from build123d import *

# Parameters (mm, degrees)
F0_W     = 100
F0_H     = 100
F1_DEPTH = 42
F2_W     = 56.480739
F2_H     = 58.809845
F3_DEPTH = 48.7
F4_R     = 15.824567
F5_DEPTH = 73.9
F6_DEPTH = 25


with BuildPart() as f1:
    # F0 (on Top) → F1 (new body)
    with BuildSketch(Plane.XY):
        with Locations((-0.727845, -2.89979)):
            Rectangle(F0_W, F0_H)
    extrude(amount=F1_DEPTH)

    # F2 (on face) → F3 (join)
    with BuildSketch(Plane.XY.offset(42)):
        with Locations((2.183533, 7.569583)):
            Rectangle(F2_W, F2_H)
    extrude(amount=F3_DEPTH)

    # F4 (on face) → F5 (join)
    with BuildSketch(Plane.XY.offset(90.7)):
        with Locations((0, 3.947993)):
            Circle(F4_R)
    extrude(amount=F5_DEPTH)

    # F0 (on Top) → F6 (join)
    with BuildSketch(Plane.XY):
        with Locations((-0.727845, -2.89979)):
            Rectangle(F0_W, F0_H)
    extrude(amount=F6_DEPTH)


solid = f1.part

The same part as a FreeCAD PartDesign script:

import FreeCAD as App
import Part
import Sketcher

V = App.Vector
Q = App.Units.Quantity

doc = App.newDocument("Part")
params = doc.addObject("Spreadsheet::Sheet", "Params")
for row, (alias, value) in enumerate([
    ("sketch1_width", "100 mm"),
    ("pad1_length", "42 mm"),
    ("pad2_length", "48.7 mm"),
    ("pad3_length", "73.9 mm"),
    ("sketch4_width", "100 mm"),
    ("pad4_length", "25 mm"),
], start=1):
    params.set(f"A{row}", alias)
    params.set(f"B{row}", "=" + value)
    params.setAlias(f"B{row}", alias)

body = doc.addObject("PartDesign::Body", "Body")

# Sketch on XY plane
sketch1 = body.newObject("Sketcher::SketchObject", "Sketch")
sketch1.AttachmentSupport = (doc.getObject("XY_Plane"), [""])
sketch1.MapMode = "FlatFace"
sketch1.addGeometry(Part.LineSegment(V(-50.727845, 47.10021, 0), V(-50.727845, -52.89979, 0)), False)
sketch1.addGeometry(Part.LineSegment(V(-50.727845, -52.89979, 0), V(49.272155, -52.89979, 0)), False)
sketch1.addGeometry(Part.LineSegment(V(49.272155, -52.89979, 0), V(49.272155, 47.10021, 0)), False)
sketch1.addGeometry(Part.LineSegment(V(49.272155, 47.10021, 0), V(-50.727845, 47.10021, 0)), False)
sketch1.addConstraint(Sketcher.Constraint("Coincident", 0, 2, 1, 1))
sketch1.addConstraint(Sketcher.Constraint("Coincident", 1, 2, 2, 1))
sketch1.addConstraint(Sketcher.Constraint("Coincident", 2, 2, 3, 1))
sketch1.addConstraint(Sketcher.Constraint("Coincident", 3, 2, 0, 1))
sketch1.addConstraint(Sketcher.Constraint("Vertical", 0))
sketch1.addConstraint(Sketcher.Constraint("Horizontal", 1))
sketch1.addConstraint(Sketcher.Constraint("Vertical", 2))
sketch1.addConstraint(Sketcher.Constraint("Horizontal", 3))
sketch1.addConstraint(Sketcher.Constraint("Equal", 3, 0))
sketch1.addConstraint(Sketcher.Constraint("DistanceX", 1, 1, 1, 2, Q("100 mm")))
sketch1.addConstraint(Sketcher.Constraint("DistanceY", 0, 2, -1, 1, Q("52.89979 mm")))
sketch1.addConstraint(Sketcher.Constraint("DistanceX", 0, 2, -1, 1, Q("50.727845 mm")))
sketch1.setExpression("Constraints[9]", "Params.sketch1_width")
pad1 = body.newObject("PartDesign::Pad", "Pad")
pad1.Profile = sketch1
pad1.setExpression("Length", "Params.pad1_length")

# Sketch on XY plane
sketch2 = body.newObject("Sketcher::SketchObject", "Sketch001")
sketch2.AttachmentSupport = (doc.getObject("XY_Plane"), [""])
sketch2.MapMode = "FlatFace"
sketch2.AttachmentOffset = App.Placement(V(0, 0, 42), App.Rotation())
sketch2.addGeometry(Part.LineSegment(V(-26.056836, 36.974505, 0), V(-26.056836, -21.835339, 0)), False)
sketch2.addGeometry(Part.LineSegment(V(-26.056836, -21.835339, 0), V(30.423903, -21.835339, 0)), False)
sketch2.addGeometry(Part.LineSegment(V(30.423903, -21.835339, 0), V(30.423903, 36.974505, 0)), False)
sketch2.addGeometry(Part.LineSegment(V(30.423903, 36.974505, 0), V(-26.056836, 36.974505, 0)), False)
sketch2.addConstraint(Sketcher.Constraint("Coincident", 0, 2, 1, 1))
sketch2.addConstraint(Sketcher.Constraint("Coincident", 1, 2, 2, 1))
sketch2.addConstraint(Sketcher.Constraint("Coincident", 2, 2, 3, 1))
sketch2.addConstraint(Sketcher.Constraint("Coincident", 3, 2, 0, 1))
sketch2.addConstraint(Sketcher.Constraint("Vertical", 0))
sketch2.addConstraint(Sketcher.Constraint("Horizontal", 1))
sketch2.addConstraint(Sketcher.Constraint("Vertical", 2))
sketch2.addConstraint(Sketcher.Constraint("Horizontal", 3))
sketch2.addConstraint(Sketcher.Constraint("DistanceX", 1, 1, 1, 2, Q("56.480739 mm")))
sketch2.addConstraint(Sketcher.Constraint("DistanceY", 0, 2, 0, 1, Q("58.809845 mm")))
sketch2.addConstraint(Sketcher.Constraint("DistanceY", 0, 2, -1, 1, Q("21.835339 mm")))
sketch2.addConstraint(Sketcher.Constraint("DistanceX", 0, 2, -1, 1, Q("26.056836 mm")))
pad2 = body.newObject("PartDesign::Pad", "Pad001")
pad2.Profile = sketch2
pad2.setExpression("Length", "Params.pad2_length")

# Sketch on XY plane
sketch3 = body.newObject("Sketcher::SketchObject", "Sketch002")
sketch3.AttachmentSupport = (doc.getObject("XY_Plane"), [""])
sketch3.MapMode = "FlatFace"
sketch3.AttachmentOffset = App.Placement(V(0, 0, 90.7), App.Rotation())
sketch3.addGeometry(Part.Circle(V(0, 3.947993, 0), V(0, 0, 1), 15.824567), False)
sketch3.addConstraint(Sketcher.Constraint("PointOnObject", 0, 3, -2))
sketch3.addConstraint(Sketcher.Constraint("Diameter", 0, Q("31.649134 mm")))
sketch3.addConstraint(Sketcher.Constraint("DistanceY", -1, 1, 0, 3, Q("3.947993 mm")))
pad3 = body.newObject("PartDesign::Pad", "Pad002")
pad3.Profile = sketch3
pad3.setExpression("Length", "Params.pad3_length")

# Sketch on XY plane
sketch4 = body.newObject("Sketcher::SketchObject", "Sketch003")
sketch4.AttachmentSupport = (doc.getObject("XY_Plane"), [""])
sketch4.MapMode = "FlatFace"
sketch4.addGeometry(Part.LineSegment(V(-50.727845, 47.10021, 0), V(-50.727845, -52.89979, 0)), False)
sketch4.addGeometry(Part.LineSegment(V(-50.727845, -52.89979, 0), V(49.272155, -52.89979, 0)), False)
sketch4.addGeometry(Part.LineSegment(V(49.272155, -52.89979, 0), V(49.272155, 47.10021, 0)), False)
sketch4.addGeometry(Part.LineSegment(V(49.272155, 47.10021, 0), V(-50.727845, 47.10021, 0)), False)
sketch4.addConstraint(Sketcher.Constraint("Coincident", 0, 2, 1, 1))
sketch4.addConstraint(Sketcher.Constraint("Coincident", 1, 2, 2, 1))
sketch4.addConstraint(Sketcher.Constraint("Coincident", 2, 2, 3, 1))
sketch4.addConstraint(Sketcher.Constraint("Coincident", 3, 2, 0, 1))
sketch4.addConstraint(Sketcher.Constraint("Vertical", 0))
sketch4.addConstraint(Sketcher.Constraint("Horizontal", 1))
sketch4.addConstraint(Sketcher.Constraint("Vertical", 2))
sketch4.addConstraint(Sketcher.Constraint("Horizontal", 3))
sketch4.addConstraint(Sketcher.Constraint("Equal", 3, 0))
sketch4.addConstraint(Sketcher.Constraint("DistanceX", 1, 1, 1, 2, Q("100 mm")))
sketch4.addConstraint(Sketcher.Constraint("DistanceY", 0, 2, -1, 1, Q("52.89979 mm")))
sketch4.addConstraint(Sketcher.Constraint("DistanceX", 0, 2, -1, 1, Q("50.727845 mm")))
sketch4.setExpression("Constraints[9]", "Params.sketch4_width")
pad4 = body.newObject("PartDesign::Pad", "Pad003")
pad4.Profile = sketch4
pad4.setExpression("Length", "Params.pad4_length")

doc.recompute()
